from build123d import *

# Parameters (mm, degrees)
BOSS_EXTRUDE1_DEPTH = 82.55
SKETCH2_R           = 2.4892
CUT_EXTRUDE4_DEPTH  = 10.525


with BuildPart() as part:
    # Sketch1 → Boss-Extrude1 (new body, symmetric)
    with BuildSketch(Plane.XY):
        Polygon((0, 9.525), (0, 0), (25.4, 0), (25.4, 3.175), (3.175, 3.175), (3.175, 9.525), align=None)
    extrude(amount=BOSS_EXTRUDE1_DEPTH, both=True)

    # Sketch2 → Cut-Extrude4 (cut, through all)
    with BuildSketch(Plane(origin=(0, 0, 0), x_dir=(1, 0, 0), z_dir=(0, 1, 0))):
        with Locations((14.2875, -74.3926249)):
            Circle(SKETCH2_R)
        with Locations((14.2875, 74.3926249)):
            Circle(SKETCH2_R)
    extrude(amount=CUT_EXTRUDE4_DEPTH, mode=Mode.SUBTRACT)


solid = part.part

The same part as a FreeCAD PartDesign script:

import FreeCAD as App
import Part
import Sketcher
Q = App.Units.Quantity

doc = App.newDocument("Part")
params = doc.addObject("Spreadsheet::Sheet", "Params")
for row, (alias, value) in enumerate([
    ("sketch1_width", "1 in"),
    ("sketch1_height", "0.25 in"),
    ("sketch1_width2", "0.875 in"),
    ("pad1_length", "6.5 in"),
    ("sketch2_diameter", "0.196 in"),
], start=1):
    params.set(f"A{row}", alias)
    params.set(f"B{row}", "=" + value)
    params.setAlias(f"B{row}", alias)

body = doc.addObject("PartDesign::Body", "Body")

# Sketch on XY plane
sketch1 = body.newObject("Sketcher::SketchObject", "Sketch")
sketch1.AttachmentSupport = (doc.getObject("XY_Plane"), [""])
sketch1.MapMode = "FlatFace"
sketch1.addGeometry(Part.LineSegment(App.Vector(0, 9.5, 0), App.Vector(0, 0, 0)), False)
sketch1.addGeometry(Part.LineSegment(App.Vector(0, 0, 0), App.Vector(25.4, 0, 0)), False)
sketch1.addGeometry(Part.LineSegment(App.Vector(25.4, 0, 0), App.Vector(25.4, 3.2, 0)), False)
sketch1.addGeometry(Part.LineSegment(App.Vector(25.4, 3.2, 0), App.Vector(3.2, 3.2, 0)), False)
sketch1.addGeometry(Part.LineSegment(App.Vector(3.2, 3.2, 0), App.Vector(3.2, 9.5, 0)), False)
sketch1.addGeometry(Part.LineSegment(App.Vector(3.2, 9.5, 0), App.Vector(0, 9.5, 0)), False)
sketch1.addConstraint(Sketcher.Constraint("Coincident", 0, 2, 1, 1))
sketch1.addConstraint(Sketcher.Constraint("Coincident", 1, 2, 2, 1))
sketch1.addConstraint(Sketcher.Constraint("Coincident", 2, 2, 3, 1))
sketch1.addConstraint(Sketcher.Constraint("Coincident", 3, 2, 4, 1))
sketch1.addConstraint(Sketcher.Constraint("Coincident", 4, 2, 5, 1))
sketch1.addConstraint(Sketcher.Constraint("Coincident", 5, 2, 0, 1))
sketch1.addConstraint(Sketcher.Constraint("Vertical", 0))
sketch1.addConstraint(Sketcher.Constraint("Horizontal", 1))
sketch1.addConstraint(Sketcher.Constraint("Vertical", 2))
sketch1.addConstraint(Sketcher.Constraint("Horizontal", 3))
sketch1.addConstraint(Sketcher.Constraint("Vertical", 4))
sketch1.addConstraint(Sketcher.Constraint("Horizontal", 5))
sketch1.addConstraint(Sketcher.Constraint("Coincident", 0, 2, -1, 1))
sketch1.addConstraint(Sketcher.Constraint("Equal", 5, 2))
sketch1.addConstraint(Sketcher.Constraint("DistanceX", 1, 1, 1, 2, Q("1 in")))
sketch1.addConstraint(Sketcher.Constraint("DistanceY", 4, 1, 4, 2, Q("0.25 in")))
sketch1.addConstraint(Sketcher.Constraint("DistanceX", 3, 2, 3, 1, Q("0.875 in")))
sketch1.setExpression("Constraints[14]", "Params.sketch1_width")
sketch1.setExpression("Constraints[15]", "Params.sketch1_height")
sketch1.setExpression("Constraints[16]", "Params.sketch1_width2")
pad1 = body.newObject("PartDesign::Pad", "Pad")
pad1.Profile = sketch1
pad1.setExpression("Length", "Params.pad1_length")
pad1.Midplane = True

# Sketch on XZ plane
sketch2 = body.newObject("Sketcher::SketchObject", "Sketch001")
sketch2.AttachmentSupport = (doc.getObject("XZ_Plane"), [""])
sketch2.MapMode = "FlatFace"
sketch2.addGeometry(Part.Circle(App.Vector(14.3, 74.4, 0), App.Vector(0, 0, 1), 2.5), False)
sketch2.addGeometry(Part.Circle(App.Vector(14.3, -74.4, 0), App.Vector(0, 0, 1), 2.5), False)
sketch2.addConstraint(Sketcher.Constraint("Equal", 0, 1))
sketch2.addConstraint(Sketcher.Constraint("Symmetric", 0, 3, 1, 3, -1))
sketch2.addConstraint(Sketcher.Constraint("Diameter", 0, Q("0.196 in")))
sketch2.addConstraint(Sketcher.Constraint("DistanceX", -1, 1, 0, 3, Q("0.5625 in")))
sketch2.addConstraint(Sketcher.Constraint("DistanceY", 1, 3, 0, 3, Q("148.78525 mm")))
sketch2.setExpression("Constraints[2]", "Params.sketch2_diameter")
pocket1 = body.newObject("PartDesign::Pocket", "Pocket")
pocket1.Profile = sketch2
pocket1.Type = "ThroughAll"

doc.recompute()
